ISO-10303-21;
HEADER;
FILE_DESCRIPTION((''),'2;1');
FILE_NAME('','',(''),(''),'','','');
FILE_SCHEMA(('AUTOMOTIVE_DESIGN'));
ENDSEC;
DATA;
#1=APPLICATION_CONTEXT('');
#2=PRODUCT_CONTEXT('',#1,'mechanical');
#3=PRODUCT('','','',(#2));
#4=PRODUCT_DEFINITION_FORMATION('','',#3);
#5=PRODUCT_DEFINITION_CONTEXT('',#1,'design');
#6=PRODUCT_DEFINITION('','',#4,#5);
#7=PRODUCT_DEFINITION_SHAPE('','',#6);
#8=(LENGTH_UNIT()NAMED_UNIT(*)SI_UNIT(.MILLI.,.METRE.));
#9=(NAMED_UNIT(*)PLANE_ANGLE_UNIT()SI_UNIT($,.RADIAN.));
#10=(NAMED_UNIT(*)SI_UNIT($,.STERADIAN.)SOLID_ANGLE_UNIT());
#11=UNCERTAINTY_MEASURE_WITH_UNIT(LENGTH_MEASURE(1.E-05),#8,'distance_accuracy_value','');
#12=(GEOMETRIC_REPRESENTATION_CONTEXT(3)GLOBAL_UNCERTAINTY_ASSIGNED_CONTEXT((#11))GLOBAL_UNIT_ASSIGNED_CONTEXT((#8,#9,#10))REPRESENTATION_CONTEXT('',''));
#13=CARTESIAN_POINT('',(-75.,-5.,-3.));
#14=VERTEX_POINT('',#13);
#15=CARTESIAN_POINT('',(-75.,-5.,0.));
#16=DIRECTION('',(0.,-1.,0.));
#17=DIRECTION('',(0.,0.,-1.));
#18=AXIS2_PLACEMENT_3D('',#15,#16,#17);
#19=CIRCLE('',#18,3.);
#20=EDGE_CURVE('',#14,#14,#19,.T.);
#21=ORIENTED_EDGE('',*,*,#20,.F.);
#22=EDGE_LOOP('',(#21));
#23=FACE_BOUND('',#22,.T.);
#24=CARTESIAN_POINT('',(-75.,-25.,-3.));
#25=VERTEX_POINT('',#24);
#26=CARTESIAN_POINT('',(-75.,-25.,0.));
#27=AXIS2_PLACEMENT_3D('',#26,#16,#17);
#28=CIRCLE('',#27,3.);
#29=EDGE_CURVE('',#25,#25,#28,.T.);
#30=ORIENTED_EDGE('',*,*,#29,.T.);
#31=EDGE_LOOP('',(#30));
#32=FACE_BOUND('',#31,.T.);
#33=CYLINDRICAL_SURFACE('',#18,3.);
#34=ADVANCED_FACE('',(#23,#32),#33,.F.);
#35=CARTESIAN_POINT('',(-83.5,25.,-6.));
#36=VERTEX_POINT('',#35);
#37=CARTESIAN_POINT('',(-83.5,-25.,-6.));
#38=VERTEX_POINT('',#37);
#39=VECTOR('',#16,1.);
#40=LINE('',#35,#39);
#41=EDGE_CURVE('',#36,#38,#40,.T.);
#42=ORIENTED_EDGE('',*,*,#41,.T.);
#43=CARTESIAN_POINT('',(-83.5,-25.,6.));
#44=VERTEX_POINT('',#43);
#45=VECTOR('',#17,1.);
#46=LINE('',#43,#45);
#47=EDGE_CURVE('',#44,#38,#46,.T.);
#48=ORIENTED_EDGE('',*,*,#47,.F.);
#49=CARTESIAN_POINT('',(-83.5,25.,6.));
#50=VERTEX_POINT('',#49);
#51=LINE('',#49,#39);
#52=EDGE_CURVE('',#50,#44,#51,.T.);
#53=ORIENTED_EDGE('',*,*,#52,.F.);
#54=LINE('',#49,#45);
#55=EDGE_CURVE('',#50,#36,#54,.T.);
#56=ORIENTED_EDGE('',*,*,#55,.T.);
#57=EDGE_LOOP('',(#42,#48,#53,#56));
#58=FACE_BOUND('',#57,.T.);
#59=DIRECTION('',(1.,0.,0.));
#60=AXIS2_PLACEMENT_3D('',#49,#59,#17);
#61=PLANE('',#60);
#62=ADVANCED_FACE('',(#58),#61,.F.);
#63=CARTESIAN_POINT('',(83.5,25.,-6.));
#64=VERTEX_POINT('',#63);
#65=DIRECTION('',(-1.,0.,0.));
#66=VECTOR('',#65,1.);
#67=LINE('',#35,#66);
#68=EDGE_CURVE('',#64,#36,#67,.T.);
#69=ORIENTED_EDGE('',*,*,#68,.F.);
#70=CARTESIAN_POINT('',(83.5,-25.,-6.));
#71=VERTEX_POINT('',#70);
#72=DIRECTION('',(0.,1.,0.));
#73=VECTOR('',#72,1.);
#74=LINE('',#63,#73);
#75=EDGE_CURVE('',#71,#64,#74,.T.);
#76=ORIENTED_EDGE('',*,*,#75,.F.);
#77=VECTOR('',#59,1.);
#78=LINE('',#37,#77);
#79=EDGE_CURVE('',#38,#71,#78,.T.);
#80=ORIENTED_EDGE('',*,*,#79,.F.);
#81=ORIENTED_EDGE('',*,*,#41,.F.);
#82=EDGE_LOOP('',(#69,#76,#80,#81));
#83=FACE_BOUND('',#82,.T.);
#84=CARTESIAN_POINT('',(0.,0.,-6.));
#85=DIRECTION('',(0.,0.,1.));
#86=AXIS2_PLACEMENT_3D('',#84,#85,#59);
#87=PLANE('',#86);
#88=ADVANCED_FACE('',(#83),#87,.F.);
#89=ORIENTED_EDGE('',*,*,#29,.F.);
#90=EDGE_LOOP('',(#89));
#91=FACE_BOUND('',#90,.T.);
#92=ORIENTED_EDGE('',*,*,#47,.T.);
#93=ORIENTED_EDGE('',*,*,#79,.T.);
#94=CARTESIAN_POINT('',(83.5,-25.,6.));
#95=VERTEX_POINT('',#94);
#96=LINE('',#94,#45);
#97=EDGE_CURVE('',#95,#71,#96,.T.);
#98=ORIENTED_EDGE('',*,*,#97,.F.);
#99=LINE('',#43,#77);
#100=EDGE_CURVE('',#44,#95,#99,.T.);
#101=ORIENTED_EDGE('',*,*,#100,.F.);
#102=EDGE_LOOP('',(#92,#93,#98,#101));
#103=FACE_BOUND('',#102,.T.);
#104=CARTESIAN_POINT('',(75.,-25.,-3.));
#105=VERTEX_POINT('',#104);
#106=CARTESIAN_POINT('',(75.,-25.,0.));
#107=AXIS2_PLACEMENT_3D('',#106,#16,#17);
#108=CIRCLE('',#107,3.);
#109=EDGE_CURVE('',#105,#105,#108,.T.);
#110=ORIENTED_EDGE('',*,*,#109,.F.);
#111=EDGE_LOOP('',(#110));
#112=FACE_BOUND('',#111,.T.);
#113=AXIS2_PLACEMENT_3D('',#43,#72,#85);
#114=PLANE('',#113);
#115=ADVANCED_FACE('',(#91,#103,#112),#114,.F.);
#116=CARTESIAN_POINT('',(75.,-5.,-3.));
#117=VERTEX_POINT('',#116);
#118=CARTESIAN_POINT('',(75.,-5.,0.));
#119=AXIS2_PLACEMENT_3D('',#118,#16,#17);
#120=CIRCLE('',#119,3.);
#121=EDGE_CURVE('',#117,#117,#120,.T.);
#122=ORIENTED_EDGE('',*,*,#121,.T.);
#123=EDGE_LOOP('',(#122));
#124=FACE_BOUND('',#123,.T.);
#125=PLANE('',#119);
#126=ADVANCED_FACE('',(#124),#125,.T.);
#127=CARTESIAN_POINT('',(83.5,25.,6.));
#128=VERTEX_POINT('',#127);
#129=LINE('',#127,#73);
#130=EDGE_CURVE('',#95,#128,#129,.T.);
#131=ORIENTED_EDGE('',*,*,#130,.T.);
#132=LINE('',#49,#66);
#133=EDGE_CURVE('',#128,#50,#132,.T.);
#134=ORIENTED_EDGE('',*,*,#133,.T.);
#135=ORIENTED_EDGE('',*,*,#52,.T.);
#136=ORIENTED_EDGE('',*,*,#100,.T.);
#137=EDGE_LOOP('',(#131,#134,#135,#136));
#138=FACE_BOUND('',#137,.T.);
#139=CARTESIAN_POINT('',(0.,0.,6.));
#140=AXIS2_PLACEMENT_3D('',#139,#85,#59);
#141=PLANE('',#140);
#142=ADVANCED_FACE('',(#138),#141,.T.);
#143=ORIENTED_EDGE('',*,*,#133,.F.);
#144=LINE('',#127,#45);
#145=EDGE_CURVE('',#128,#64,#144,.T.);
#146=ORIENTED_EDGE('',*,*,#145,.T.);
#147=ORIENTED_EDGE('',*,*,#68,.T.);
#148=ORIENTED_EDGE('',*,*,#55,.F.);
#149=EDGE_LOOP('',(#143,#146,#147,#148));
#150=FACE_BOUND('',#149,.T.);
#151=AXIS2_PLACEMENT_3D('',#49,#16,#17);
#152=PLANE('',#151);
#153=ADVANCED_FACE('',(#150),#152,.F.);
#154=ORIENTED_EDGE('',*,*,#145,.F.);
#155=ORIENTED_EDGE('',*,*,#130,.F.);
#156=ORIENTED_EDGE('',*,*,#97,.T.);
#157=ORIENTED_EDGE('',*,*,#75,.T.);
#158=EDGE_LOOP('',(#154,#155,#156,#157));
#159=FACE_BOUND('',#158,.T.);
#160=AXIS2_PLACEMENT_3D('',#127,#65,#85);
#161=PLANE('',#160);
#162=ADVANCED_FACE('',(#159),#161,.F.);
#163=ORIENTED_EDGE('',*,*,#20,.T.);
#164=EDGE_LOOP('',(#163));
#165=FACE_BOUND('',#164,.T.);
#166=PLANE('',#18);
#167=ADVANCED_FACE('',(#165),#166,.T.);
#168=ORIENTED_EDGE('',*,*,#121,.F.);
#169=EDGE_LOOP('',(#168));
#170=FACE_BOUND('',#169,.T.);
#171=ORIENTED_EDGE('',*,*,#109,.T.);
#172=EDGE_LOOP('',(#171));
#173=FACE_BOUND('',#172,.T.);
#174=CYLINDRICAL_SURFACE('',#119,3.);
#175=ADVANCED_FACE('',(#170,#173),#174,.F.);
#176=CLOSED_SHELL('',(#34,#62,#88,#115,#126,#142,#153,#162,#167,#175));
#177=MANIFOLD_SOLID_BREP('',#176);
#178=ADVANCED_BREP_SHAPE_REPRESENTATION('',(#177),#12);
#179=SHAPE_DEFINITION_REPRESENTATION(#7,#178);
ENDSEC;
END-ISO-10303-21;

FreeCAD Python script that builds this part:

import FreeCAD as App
import Part
import Sketcher

doc = App.newDocument("Part")
body = doc.addObject("PartDesign::Body", "Body")

sketch1 = body.newObject("Sketcher::SketchObject", "Sketch")
sketch1.AttachmentSupport = (doc.getObject("XY_Plane"), [""])
sketch1.MapMode = "FlatFace"
sketch1.addGeometry([
    Part.LineSegment(App.Vector(-84, 25, 0), App.Vector(-84, -25, 0)),
    Part.LineSegment(App.Vector(-84, -25, 0), App.Vector(84, -25, 0)),
    Part.LineSegment(App.Vector(84, -25, 0), App.Vector(84, 25, 0)),
    Part.LineSegment(App.Vector(84, 25, 0), App.Vector(-84, 25, 0)),
], False)
sketch1.addConstraint([
    Sketcher.Constraint("Coincident", 0, 2, 1, 1),
    Sketcher.Constraint("Coincident", 1, 2, 2, 1),
    Sketcher.Constraint("Coincident", 2, 2, 3, 1),
    Sketcher.Constraint("Coincident", 3, 2, 0, 1),
    Sketcher.Constraint("Vertical", 0),
    Sketcher.Constraint("Horizontal", 1),
    Sketcher.Constraint("Vertical", 2),
    Sketcher.Constraint("Horizontal", 3),
    Sketcher.Constraint("Symmetric", 0, 2, 2, 2, -1, 1),
    Sketcher.Constraint("DistanceX", 1, 1, 1, 2, 167.0),
    Sketcher.Constraint("DistanceY", 0, 2, 0, 1, 50.0),
])
pad1 = body.newObject("PartDesign::Pad", "Pad")
pad1.Profile = sketch1
pad1.Length = 12
pad1.Midplane = True

sketch2 = body.newObject("Sketcher::SketchObject", "Sketch001")
sketch2.AttachmentSupport = (doc.getObject("XZ_Plane"), [""])
sketch2.MapMode = "FlatFace"
sketch2.AttachmentOffset = App.Placement(App.Vector(0, 0, 25), App.Rotation())
sketch2.addGeometry([
    Part.Circle(App.Vector(-75, 0, 0), App.Vector(0, 0, 1), 3),
    Part.Circle(App.Vector(75, 0, 0), App.Vector(0, 0, 1), 3),
], False)
sketch2.addConstraint([
    Sketcher.Constraint("Equal", 0, 1),
    Sketcher.Constraint("Symmetric", 0, 3, 1, 3, -1, 1),
    Sketcher.Constraint("PointOnObject", 0, 3, -1),
    Sketcher.Constraint("Diameter", 0, 6.0),
    Sketcher.Constraint("DistanceX", 0, 3, -1, 1, 75.0),
])
pocket1 = body.newObject("PartDesign::Pocket", "Pocket")
pocket1.Profile = sketch2
pocket1.Length = 20

doc.recompute()
